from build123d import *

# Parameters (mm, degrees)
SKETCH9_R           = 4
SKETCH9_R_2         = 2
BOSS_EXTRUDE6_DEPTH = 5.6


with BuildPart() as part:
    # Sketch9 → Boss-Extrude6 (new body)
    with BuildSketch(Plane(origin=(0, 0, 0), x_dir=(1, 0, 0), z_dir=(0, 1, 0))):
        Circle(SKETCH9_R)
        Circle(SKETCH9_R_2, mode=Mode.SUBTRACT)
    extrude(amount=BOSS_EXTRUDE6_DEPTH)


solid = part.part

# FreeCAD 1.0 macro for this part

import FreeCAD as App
import Part
import Sketcher
from FreeCAD import Vector
Q = App.Units.Quantity

doc = App.newDocument("Part")
body = doc.addObject("PartDesign::Body", "Body")

# Sketch on XZ plane
sketch1 = body.newObject("Sketcher::SketchObject", "Sketch")
sketch1.AttachmentSupport = (doc.getObject("XZ_Plane"), [""])
sketch1.MapMode = "FlatFace"
sketch1.addGeometry([
    Part.Circle(Vector(0, 0, 0), Vector(0, 0, 1), 4),
    Part.Circle(Vector(0, 0, 0), Vector(0, 0, 1), 2),
], False)
sketch1.addConstraint([
    Sketcher.Constraint("Coincident", 0, 3, -1, 1),
    Sketcher.Constraint("Coincident", 1, 3, -1, 1),
    Sketcher.Constraint("Diameter", 0, Q("8 mm")),
    Sketcher.Constraint("Diameter", 1, Q("4 mm")),
])
pad1 = body.newObject("PartDesign::Pad", "Pad")
pad1.Profile = sketch1
pad1.Length = 5.6
pad1.Reversed = True

doc.recompute()
